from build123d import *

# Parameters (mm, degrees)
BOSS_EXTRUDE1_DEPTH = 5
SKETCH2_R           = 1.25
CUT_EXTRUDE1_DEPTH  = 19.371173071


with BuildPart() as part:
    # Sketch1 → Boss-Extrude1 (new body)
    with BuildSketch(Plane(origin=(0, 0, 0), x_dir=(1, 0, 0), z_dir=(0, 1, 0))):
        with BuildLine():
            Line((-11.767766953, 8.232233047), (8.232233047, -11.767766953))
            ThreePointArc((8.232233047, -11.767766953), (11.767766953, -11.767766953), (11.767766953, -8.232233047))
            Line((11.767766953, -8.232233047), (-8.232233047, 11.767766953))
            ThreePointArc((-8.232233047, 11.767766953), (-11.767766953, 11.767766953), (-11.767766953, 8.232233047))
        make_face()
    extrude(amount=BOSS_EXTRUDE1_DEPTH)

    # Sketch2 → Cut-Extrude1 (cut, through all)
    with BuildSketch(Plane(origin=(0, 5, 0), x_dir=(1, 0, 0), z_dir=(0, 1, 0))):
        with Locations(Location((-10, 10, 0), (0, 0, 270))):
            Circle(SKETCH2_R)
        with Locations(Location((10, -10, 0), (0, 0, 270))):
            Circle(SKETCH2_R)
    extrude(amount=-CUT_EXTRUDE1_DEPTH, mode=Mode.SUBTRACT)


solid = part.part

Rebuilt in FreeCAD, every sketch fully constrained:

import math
import FreeCAD as App
import Part
import Sketcher
Q = App.Units.Quantity

doc = App.newDocument("Part")
params = doc.addObject("Spreadsheet::Sheet", "Params")
for row, (alias, value) in enumerate([
    ("sketch1_radius", "2.5 mm"),
    ("pad1_length", "5 mm"),
    ("sketch2_diameter", "2.5 mm"),
], start=1):
    params.set(f"A{row}", alias)
    params.set(f"B{row}", "=" + value)
    params.setAlias(f"B{row}", alias)

body = doc.addObject("PartDesign::Body", "Body")

sketch1 = body.newObject("Sketcher::SketchObject", "Sketch")
sketch1.AttachmentSupport = (doc.getObject("XZ_Plane"), [""])
sketch1.MapMode = "FlatFace"
sketch1.addGeometry(Part.LineSegment(App.Vector(-11.767767, -8.232233, 0), App.Vector(8.232233, 11.767767, 0)), False)
sketch1.addGeometry(Part.ArcOfCircle(Part.Circle(App.Vector(10, 10, 0), App.Vector(0, 0, 1), 2.5), math.radians(-45), math.radians(135)), False)
sketch1.addGeometry(Part.LineSegment(App.Vector(11.767767, 8.232233, 0), App.Vector(-8.232233, -11.767767, 0)), False)
sketch1.addGeometry(Part.ArcOfCircle(Part.Circle(App.Vector(-10, -10, 0), App.Vector(0, 0, 1), 2.5), math.radians(135), math.radians(315)), False)
sketch1.addConstraint(Sketcher.Constraint("Tangent", 0, 2, 1, 2))
sketch1.addConstraint(Sketcher.Constraint("Tangent", 1, 1, 2, 1))
sketch1.addConstraint(Sketcher.Constraint("Tangent", 2, 2, 3, 2))
sketch1.addConstraint(Sketcher.Constraint("Tangent", 3, 1, 0, 1))
sketch1.addConstraint(Sketcher.Constraint("Equal", 1, 3))
sketch1.addConstraint(Sketcher.Constraint("Symmetric", 1, 3, 3, 3, -1, 1))
sketch1.addConstraint(Sketcher.Constraint("Radius", 1, Q("2.5 mm")))
sketch1.addConstraint(Sketcher.Constraint("Angle", 0, Q("45 deg")))
sketch1.addConstraint(Sketcher.Constraint("DistanceX", -1, 1, 1, 3, Q("10 mm")))
sketch1.setExpression("Constraints[6]", "Params.sketch1_radius")
pad1 = body.newObject("PartDesign::Pad", "Pad")
pad1.Profile = sketch1
pad1.setExpression("Length", "Params.pad1_length")
pad1.Reversed = True

sketch2 = body.newObject("Sketcher::SketchObject", "Sketch001")
sketch2.AttachmentSupport = (doc.getObject("XZ_Plane"), [""])
sketch2.MapMode = "FlatFace"
sketch2.AttachmentOffset = App.Placement(App.Vector(0, 0, -5), App.Rotation())
sketch2.addGeometry(Part.Circle(App.Vector(-10, -10, 0), App.Vector(0, 0, 1), 1.25), False)
sketch2.addGeometry(Part.Circle(App.Vector(10, 10, 0), App.Vector(0, 0, 1), 1.25), False)
sketch2.addConstraint(Sketcher.Constraint("Equal", 0, 1))
sketch2.addConstraint(Sketcher.Constraint("Symmetric", 0, 3, 1, 3, -1, 1))
sketch2.addConstraint(Sketcher.Constraint("Diameter", 0, Q("2.5 mm")))
sketch2.addConstraint(Sketcher.Constraint("DistanceX", 0, 3, -1, 1, Q("10 mm")))
sketch2.addConstraint(Sketcher.Constraint("DistanceY", 0, 3, -1, 1, Q("10 mm")))
sketch2.setExpression("Constraints[2]", "Params.sketch2_diameter")
pocket1 = body.newObject("PartDesign::Pocket", "Pocket")
pocket1.Profile = sketch2
pocket1.Type = "ThroughAll"
pocket1.Reversed = True

doc.recompute()
